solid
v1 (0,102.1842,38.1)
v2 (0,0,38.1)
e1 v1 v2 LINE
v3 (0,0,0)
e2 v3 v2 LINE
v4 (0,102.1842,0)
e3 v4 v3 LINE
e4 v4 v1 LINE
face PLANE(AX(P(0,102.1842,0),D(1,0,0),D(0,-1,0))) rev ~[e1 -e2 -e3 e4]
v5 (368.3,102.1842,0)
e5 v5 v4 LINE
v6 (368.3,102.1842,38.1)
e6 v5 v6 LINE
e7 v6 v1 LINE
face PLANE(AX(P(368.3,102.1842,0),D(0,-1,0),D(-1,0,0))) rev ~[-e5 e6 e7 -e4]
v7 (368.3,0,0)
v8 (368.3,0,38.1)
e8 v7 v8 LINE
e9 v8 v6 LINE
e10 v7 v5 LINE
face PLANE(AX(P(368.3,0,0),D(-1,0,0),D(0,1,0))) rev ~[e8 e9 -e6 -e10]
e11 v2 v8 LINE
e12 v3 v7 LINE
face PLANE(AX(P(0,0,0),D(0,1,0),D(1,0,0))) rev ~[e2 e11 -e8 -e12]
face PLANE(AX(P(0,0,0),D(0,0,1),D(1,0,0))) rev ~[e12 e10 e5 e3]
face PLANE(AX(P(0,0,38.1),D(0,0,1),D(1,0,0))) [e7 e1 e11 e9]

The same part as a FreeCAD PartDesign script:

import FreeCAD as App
import Part
import Sketcher

V = App.Vector
Q = App.Units.Quantity


def add_polygon(sketch, points):
    """Adds a closed chain of lines whose ends are joined by coincident constraints."""
    first, n = sketch.GeometryCount, len(points)
    for a, b in zip(points, points[1:] + points[:1]):
        sketch.addGeometry(Part.LineSegment(App.Vector(*a, 0), App.Vector(*b, 0)), False)
    for i in range(n):
        sketch.addConstraint(Sketcher.Constraint("Coincident", first + i, 2, first + (i + 1) % n, 1))

doc = App.newDocument("Part")
body = doc.addObject("PartDesign::Body", "Body")

# Sketch on XY plane
sketch1 = body.newObject("Sketcher::SketchObject", "Sketch")
sketch1.AttachmentSupport = (doc.getObject("XY_Plane"), [""])
sketch1.MapMode = "FlatFace"
add_polygon(sketch1, [(0, 102.1842), (0, 0), (368.3, 0), (368.3, 102.1842)])  # lines 0-3
sketch1.addConstraint(Sketcher.Constraint("Vertical", 0))
sketch1.addConstraint(Sketcher.Constraint("Horizontal", 1))
sketch1.addConstraint(Sketcher.Constraint("Vertical", 2))
sketch1.addConstraint(Sketcher.Constraint("Horizontal", 3))
sketch1.addConstraint(Sketcher.Constraint("Coincident", 0, 2, -1, 1))
sketch1.addConstraint(Sketcher.Constraint("DistanceX", 1, 1, 1, 2, Q("14.5 in")))
sketch1.addConstraint(Sketcher.Constraint("DistanceY", 0, 2, 0, 1, Q("4.023 in")))
pad1 = body.newObject("PartDesign::Pad", "Pad")
pad1.Profile = sketch1
pad1.Length = Q("1.5 in")

doc.recompute()
